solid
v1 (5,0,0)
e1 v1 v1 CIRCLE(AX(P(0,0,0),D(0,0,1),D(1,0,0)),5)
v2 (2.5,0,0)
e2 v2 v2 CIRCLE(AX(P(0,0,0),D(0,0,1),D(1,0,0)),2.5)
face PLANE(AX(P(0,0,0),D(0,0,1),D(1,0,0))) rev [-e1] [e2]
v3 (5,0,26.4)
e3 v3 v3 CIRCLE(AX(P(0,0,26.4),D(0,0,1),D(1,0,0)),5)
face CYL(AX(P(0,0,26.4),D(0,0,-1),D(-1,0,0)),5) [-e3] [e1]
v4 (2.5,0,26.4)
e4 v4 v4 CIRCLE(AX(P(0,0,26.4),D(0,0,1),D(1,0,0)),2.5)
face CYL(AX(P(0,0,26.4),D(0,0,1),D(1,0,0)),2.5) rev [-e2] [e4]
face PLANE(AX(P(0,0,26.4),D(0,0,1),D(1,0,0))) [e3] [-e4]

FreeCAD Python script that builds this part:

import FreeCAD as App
import Part
import Sketcher

V = App.Vector
Q = App.Units.Quantity

doc = App.newDocument("Part")
body = doc.addObject("PartDesign::Body", "Body")

# Sketch on XY plane
sketch1 = body.newObject("Sketcher::SketchObject", "Sketch")
sketch1.AttachmentSupport = (doc.getObject("XY_Plane"), [""])
sketch1.MapMode = "FlatFace"
sketch1.addGeometry(Part.Circle(V(0, 0, 0), V(0, 0, 1), 5), False)
sketch1.addConstraint([
    Sketcher.Constraint("Coincident", 0, 3, -1, 1),
    Sketcher.Constraint("Diameter", 0, Q("10 mm")),
])
pad1 = body.newObject("PartDesign::Pad", "Pad")
pad1.Profile = sketch1
pad1.Length = 26.4

# Sketch on XY plane
sketch2 = body.newObject("Sketcher::SketchObject", "Sketch001")
sketch2.AttachmentSupport = (doc.getObject("XY_Plane"), [""])
sketch2.MapMode = "FlatFace"
sketch2.AttachmentOffset = App.Placement(V(0, 0, 26.4), App.Rotation())
sketch2.addGeometry(Part.Circle(V(0, 0, 0), V(0, 0, 1), 2.5), False)
sketch2.addConstraint([
    Sketcher.Constraint("Coincident", 0, 3, -1, 1),
    Sketcher.Constraint("Diameter", 0, Q("5 mm")),
])
doc.recompute()
hole = body.newObject("PartDesign::Hole", "Hole")
hole.Profile = sketch2
hole.ThreadType = "None"
hole.Diameter = 5
hole.DepthType = "Dimension"
hole.Depth = 26.4
hole.DrillPoint = "Flat"

doc.recompute()
